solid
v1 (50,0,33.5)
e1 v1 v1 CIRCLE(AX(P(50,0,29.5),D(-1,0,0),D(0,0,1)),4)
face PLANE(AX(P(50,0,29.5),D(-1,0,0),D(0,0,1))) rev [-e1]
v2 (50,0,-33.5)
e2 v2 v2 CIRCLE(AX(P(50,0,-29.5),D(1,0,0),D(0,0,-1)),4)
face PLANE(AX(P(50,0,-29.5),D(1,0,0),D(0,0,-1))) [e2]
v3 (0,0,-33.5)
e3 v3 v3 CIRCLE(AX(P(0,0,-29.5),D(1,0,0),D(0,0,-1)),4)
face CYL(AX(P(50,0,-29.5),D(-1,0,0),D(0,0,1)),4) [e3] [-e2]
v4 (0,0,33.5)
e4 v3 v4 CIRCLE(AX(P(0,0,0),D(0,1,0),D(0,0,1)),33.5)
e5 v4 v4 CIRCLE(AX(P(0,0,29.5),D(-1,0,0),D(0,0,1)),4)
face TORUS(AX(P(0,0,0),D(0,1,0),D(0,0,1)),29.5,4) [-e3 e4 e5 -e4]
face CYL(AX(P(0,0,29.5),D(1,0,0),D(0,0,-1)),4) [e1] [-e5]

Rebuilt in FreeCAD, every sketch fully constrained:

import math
import FreeCAD as App
import Part
import Sketcher

doc = App.newDocument("Part")
body = doc.addObject("PartDesign::Body", "Body")

sketch1 = body.newObject("Sketcher::SketchObject", "Sketch")
sketch1.AttachmentSupport = (doc.getObject("YZ_Plane"), [""])
sketch1.MapMode = "FlatFace"
sketch1.AttachmentOffset = App.Placement(App.Vector(0, 0, 50), App.Rotation())
sketch1.addGeometry(Part.Circle(App.Vector(0, -29.5, 0), App.Vector(0, 0, 1), 4), False)
sketch1.addConstraint([
    Sketcher.Constraint("PointOnObject", 0, 3, -2),
    Sketcher.Constraint("Diameter", 0, 8.0),
    Sketcher.Constraint("DistanceY", 0, 3, -1, 1, 29.5),
])

sketch2 = body.newObject("Sketcher::SketchObject", "Sketch001")
sketch2.AttachmentSupport = (doc.getObject("XZ_Plane"), [""])
sketch2.MapMode = "FlatFace"
sketch2.addGeometry([
    Part.LineSegment(App.Vector(50, -29.5, 0), App.Vector(0, -29.5, 0)),
    Part.ArcOfCircle(Part.Circle(App.Vector(0, 0, 0), App.Vector(0, 0, 1), 29.5), math.radians(90), math.radians(270)),
    Part.LineSegment(App.Vector(0, 29.5, 0), App.Vector(50, 29.5, 0)),
], False)
sketch2.addConstraint([
    Sketcher.Constraint("Tangent", 0, 2, 1, 2),
    Sketcher.Constraint("Tangent", 1, 1, 2, 1),
    Sketcher.Constraint("Horizontal", 0),
    Sketcher.Constraint("Horizontal", 2),
    Sketcher.Constraint("Coincident", 1, 3, -1, 1),
    Sketcher.Constraint("Vertical", 0, 1, 2, 2),
    Sketcher.Constraint("Radius", 1, 29.5),
    Sketcher.Constraint("DistanceX", 0, 2, 0, 1, 50.0),
])
doc.recompute()

additivepipe = body.newObject("PartDesign::AdditivePipe", "AdditivePipe")
additivepipe.Profile = sketch1
additivepipe.Spine = (sketch2, ["Edge1", "Edge2", "Edge3"])

doc.recompute()
